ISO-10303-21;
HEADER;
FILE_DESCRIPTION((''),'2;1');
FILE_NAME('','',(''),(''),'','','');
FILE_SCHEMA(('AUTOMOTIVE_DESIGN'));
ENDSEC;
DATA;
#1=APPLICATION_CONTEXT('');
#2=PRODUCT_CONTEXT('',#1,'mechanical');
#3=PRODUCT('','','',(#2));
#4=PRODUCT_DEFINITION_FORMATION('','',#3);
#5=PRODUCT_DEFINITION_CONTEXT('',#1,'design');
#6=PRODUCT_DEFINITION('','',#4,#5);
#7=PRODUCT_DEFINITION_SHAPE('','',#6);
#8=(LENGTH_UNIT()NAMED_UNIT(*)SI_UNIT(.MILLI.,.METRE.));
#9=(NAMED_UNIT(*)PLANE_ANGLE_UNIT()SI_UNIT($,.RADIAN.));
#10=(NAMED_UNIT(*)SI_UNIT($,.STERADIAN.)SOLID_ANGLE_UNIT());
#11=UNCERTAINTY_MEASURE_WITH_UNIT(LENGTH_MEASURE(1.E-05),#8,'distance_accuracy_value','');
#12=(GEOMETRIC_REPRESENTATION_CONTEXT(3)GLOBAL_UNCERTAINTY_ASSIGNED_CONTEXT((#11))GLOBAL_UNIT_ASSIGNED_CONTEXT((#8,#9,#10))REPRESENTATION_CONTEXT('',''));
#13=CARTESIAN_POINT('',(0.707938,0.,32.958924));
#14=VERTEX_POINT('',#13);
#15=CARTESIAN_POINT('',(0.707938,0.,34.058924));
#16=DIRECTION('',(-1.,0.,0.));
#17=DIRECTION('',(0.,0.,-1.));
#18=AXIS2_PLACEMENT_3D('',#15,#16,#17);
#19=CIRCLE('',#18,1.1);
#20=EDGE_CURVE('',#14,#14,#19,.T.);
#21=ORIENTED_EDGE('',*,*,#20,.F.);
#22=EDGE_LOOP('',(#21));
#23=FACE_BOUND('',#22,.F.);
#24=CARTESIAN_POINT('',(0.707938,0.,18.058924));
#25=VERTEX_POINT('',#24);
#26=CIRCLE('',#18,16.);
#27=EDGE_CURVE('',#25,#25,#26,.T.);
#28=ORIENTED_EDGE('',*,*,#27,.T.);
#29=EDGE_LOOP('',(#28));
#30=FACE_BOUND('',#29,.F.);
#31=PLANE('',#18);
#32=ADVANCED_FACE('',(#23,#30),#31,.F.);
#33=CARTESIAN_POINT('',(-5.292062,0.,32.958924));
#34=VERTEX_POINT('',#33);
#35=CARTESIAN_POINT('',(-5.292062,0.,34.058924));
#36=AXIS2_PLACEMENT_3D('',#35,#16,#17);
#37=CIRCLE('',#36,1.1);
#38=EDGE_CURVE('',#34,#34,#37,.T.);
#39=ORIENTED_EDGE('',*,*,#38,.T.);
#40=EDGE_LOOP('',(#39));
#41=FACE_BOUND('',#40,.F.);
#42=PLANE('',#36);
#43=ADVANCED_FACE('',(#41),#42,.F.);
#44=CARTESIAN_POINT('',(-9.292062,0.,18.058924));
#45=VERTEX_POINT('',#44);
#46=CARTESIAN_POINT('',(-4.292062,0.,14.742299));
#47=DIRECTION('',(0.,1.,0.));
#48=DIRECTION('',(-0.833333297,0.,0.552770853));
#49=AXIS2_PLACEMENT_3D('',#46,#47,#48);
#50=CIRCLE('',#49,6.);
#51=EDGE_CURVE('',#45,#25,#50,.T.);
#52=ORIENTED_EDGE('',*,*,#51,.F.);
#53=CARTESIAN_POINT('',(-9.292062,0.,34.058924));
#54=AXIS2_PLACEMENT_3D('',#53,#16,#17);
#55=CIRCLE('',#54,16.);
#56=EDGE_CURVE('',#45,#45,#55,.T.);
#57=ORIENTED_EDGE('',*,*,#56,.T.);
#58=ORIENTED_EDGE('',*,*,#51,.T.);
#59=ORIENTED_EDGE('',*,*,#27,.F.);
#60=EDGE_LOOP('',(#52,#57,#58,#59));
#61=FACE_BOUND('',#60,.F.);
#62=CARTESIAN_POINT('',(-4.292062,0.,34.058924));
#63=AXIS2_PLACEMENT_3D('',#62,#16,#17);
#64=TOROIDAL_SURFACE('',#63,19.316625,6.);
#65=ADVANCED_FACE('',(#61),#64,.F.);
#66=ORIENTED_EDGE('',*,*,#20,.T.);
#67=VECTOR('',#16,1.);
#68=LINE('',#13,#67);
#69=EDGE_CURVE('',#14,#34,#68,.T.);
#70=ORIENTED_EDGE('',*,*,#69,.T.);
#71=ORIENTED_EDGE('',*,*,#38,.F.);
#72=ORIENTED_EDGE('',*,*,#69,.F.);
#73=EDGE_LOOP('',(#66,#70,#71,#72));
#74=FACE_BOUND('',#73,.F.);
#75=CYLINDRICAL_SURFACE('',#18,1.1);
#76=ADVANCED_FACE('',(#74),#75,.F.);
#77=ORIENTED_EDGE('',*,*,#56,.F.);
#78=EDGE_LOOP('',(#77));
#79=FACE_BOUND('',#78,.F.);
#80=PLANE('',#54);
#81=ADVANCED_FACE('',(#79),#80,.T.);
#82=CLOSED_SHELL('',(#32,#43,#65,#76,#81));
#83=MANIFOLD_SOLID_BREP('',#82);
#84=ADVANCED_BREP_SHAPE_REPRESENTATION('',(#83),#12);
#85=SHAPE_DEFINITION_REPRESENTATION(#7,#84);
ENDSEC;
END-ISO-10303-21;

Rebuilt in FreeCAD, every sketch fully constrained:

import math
import FreeCAD as App
import Part
import Sketcher
from FreeCAD import Vector

doc = App.newDocument("Part")
body = doc.addObject("PartDesign::Body", "Body")

# Sketch on XZ plane
sketch1 = doc.addObject("Sketcher::SketchObject", "Sketch")
body.addObject(sketch1)
sketch1.AttachmentSupport = (doc.XZ_Plane, [""])
sketch1.MapMode = "FlatFace"
sketch1.addGeometry(Part.ArcOfCircle(Part.Circle(Vector(-4.3, 14.7, 0), Vector(0, 0, 1), 6), math.radians(34), math.radians(146)), False)
sketch1.addGeometry(Part.LineSegment(Vector(0.7, 18.1, 0), Vector(0.7, 33, 0)), False)
sketch1.addGeometry(Part.LineSegment(Vector(0.7, 33, 0), Vector(-5.3, 33, 0)), False)
sketch1.addGeometry(Part.LineSegment(Vector(-5.3, 33, 0), Vector(-5.3, 34.1, 0)), False)
sketch1.addGeometry(Part.LineSegment(Vector(-5.3, 34.1, 0), Vector(-9.3, 34.1, 0)), False)
sketch1.addGeometry(Part.LineSegment(Vector(-9.3, 34.1, 0), Vector(-9.3, 18.1, 0)), False)
sketch1.addGeometry(Part.LineSegment(Vector(0.7, 34.1, 0), Vector(-9.3, 34.1, 0)), True)  # axis
sketch1.addConstraint(Sketcher.Constraint("Coincident", 0, 1, 1, 1))
sketch1.addConstraint(Sketcher.Constraint("Coincident", 1, 2, 2, 1))
sketch1.addConstraint(Sketcher.Constraint("Coincident", 2, 2, 3, 1))
sketch1.addConstraint(Sketcher.Constraint("Coincident", 3, 2, 4, 1))
sketch1.addConstraint(Sketcher.Constraint("Coincident", 4, 2, 5, 1))
sketch1.addConstraint(Sketcher.Constraint("Coincident", 5, 2, 0, 2))
sketch1.addConstraint(Sketcher.Constraint("Vertical", 1))
sketch1.addConstraint(Sketcher.Constraint("Horizontal", 2))
sketch1.addConstraint(Sketcher.Constraint("Vertical", 3))
sketch1.addConstraint(Sketcher.Constraint("Horizontal", 4))
sketch1.addConstraint(Sketcher.Constraint("Vertical", 5))
sketch1.addConstraint(Sketcher.Constraint("Horizontal", 6))
sketch1.addConstraint(Sketcher.Constraint("Coincident", 6, 2, 4, 2))
sketch1.addConstraint(Sketcher.Constraint("Horizontal", 0, 1, 5, 2))
sketch1.addConstraint(Sketcher.Constraint("Vertical", 1, 2, 6, 1))
sketch1.addConstraint(Sketcher.Constraint("Radius", 0, 6.0))
sketch1.addConstraint(Sketcher.Constraint("DistanceX", 2, 2, 2, 1, 6.0))
sketch1.addConstraint(Sketcher.Constraint("DistanceX", 4, 2, 4, 1, 4.0))
sketch1.addConstraint(Sketcher.Constraint("DistanceY", 5, 2, 5, 1, 16.0))
sketch1.addConstraint(Sketcher.Constraint("DistanceY", 1, 1, 1, 2, 14.9))
sketch1.addConstraint(Sketcher.Constraint("DistanceY", -1, 1, 0, 3, 14.742299))
sketch1.addConstraint(Sketcher.Constraint("DistanceX", 0, 3, -1, 1, 4.292062))
revolution = doc.addObject("PartDesign::Revolution", "Revolution")
body.addObject(revolution)
revolution.Profile = sketch1
revolution.ReferenceAxis = (sketch1, ["Axis0"])
revolution.Angle = 360

doc.recompute()
